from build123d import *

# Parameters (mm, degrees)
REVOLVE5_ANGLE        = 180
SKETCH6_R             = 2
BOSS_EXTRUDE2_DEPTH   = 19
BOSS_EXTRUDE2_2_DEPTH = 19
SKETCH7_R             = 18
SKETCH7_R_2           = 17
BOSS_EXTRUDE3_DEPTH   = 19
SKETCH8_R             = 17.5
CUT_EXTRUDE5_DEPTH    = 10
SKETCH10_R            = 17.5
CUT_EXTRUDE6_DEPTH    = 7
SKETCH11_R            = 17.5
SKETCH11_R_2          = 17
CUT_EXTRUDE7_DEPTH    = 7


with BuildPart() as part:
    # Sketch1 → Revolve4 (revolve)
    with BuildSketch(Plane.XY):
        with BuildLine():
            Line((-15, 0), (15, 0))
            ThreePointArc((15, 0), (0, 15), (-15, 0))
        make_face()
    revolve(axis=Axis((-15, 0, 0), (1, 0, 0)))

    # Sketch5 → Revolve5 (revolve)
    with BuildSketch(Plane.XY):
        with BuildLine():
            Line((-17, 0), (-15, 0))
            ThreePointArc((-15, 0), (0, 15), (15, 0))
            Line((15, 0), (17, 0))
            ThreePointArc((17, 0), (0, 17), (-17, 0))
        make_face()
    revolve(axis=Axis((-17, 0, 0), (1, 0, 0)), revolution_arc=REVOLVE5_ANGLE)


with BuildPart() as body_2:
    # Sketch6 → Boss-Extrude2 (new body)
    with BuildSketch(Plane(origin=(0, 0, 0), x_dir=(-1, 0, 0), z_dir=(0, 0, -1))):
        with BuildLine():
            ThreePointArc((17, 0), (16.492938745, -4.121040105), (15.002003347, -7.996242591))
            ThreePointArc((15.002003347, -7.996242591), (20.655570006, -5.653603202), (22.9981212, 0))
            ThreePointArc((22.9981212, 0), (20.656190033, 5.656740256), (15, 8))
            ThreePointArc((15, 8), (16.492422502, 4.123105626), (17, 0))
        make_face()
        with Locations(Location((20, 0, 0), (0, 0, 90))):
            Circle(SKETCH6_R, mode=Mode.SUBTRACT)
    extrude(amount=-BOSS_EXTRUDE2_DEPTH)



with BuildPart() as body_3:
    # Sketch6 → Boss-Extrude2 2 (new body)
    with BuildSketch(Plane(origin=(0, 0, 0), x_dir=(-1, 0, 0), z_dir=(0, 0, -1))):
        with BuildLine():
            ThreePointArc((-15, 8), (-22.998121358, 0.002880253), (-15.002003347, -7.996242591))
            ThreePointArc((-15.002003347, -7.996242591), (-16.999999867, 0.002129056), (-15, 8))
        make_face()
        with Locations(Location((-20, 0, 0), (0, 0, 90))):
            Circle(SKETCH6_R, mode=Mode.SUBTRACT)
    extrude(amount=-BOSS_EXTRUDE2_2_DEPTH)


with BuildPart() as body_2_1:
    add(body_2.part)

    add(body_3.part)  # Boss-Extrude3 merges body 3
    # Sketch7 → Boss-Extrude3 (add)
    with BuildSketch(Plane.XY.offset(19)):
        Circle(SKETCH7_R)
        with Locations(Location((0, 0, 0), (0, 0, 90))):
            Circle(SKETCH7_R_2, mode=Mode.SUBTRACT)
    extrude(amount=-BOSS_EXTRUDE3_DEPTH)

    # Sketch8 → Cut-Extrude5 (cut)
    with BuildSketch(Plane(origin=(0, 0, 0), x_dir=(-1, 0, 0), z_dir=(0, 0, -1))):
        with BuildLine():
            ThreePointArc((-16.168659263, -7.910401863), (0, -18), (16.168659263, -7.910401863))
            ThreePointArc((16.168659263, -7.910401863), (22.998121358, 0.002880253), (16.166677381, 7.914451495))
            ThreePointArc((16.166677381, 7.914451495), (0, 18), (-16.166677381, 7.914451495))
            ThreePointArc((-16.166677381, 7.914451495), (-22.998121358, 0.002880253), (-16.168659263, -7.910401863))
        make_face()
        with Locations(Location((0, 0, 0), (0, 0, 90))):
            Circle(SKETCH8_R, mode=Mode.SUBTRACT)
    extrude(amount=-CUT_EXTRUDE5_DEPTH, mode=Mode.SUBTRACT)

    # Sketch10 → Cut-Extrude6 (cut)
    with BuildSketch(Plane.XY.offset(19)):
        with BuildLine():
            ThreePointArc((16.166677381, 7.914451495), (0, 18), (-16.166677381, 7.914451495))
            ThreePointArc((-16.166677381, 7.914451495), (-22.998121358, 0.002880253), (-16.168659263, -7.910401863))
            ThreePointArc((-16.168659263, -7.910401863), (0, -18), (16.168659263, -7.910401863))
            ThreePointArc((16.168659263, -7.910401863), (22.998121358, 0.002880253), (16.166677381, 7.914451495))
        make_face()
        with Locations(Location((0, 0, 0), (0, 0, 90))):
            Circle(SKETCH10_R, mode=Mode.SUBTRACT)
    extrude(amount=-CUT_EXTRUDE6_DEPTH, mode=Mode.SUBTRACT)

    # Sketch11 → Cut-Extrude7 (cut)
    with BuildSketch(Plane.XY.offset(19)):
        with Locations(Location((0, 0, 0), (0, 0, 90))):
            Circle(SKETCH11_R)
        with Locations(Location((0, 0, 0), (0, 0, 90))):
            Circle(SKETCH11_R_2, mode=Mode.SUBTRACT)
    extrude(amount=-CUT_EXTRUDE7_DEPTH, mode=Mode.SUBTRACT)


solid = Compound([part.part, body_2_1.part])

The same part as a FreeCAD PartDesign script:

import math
import FreeCAD as App
import Part
import Sketcher

doc = App.newDocument("Part")
body = doc.addObject("PartDesign::Body", "Body")

# Sketch on XY plane
sketch1 = body.newObject("Sketcher::SketchObject", "Sketch")
sketch1.AttachmentSupport = (doc.getObject("XY_Plane"), [""])
sketch1.MapMode = "FlatFace"
sketch1.addGeometry(Part.LineSegment(App.Vector(-15, 0, 0), App.Vector(15, 0, 0)), False)
sketch1.addGeometry(Part.ArcOfCircle(Part.Circle(App.Vector(0, 0, 0), App.Vector(0, 0, 1), 15), math.radians(0), math.radians(180)), False)
sketch1.addConstraint(Sketcher.Constraint("Coincident", 0, 1, 1, 2))
sketch1.addConstraint(Sketcher.Constraint("Coincident", 1, 1, 0, 2))
sketch1.addConstraint(Sketcher.Constraint("Horizontal", 0))
sketch1.addConstraint(Sketcher.Constraint("Coincident", 1, 3, -1, 1))
sketch1.addConstraint(Sketcher.Constraint("PointOnObject", 0, 1, -1))
sketch1.addConstraint(Sketcher.Constraint("Radius", 1, 15.0))
revolution = body.newObject("PartDesign::Revolution", "Revolution")
revolution.Profile = sketch1
revolution.ReferenceAxis = (sketch1, ["H_Axis"])
revolution.Angle = 360

# Sketch on XY plane
sketch2 = body.newObject("Sketcher::SketchObject", "Sketch001")
sketch2.AttachmentSupport = (doc.getObject("XY_Plane"), [""])
sketch2.MapMode = "FlatFace"
sketch2.addGeometry(Part.LineSegment(App.Vector(-17, 0, 0), App.Vector(-15, 0, 0)), False)
sketch2.addGeometry(Part.ArcOfCircle(Part.Circle(App.Vector(0, 0, 0), App.Vector(0, 0, 1), 15), math.radians(0), math.radians(180)), False)
sketch2.addGeometry(Part.LineSegment(App.Vector(15, 0, 0), App.Vector(17, 0, 0)), False)
sketch2.addGeometry(Part.ArcOfCircle(Part.Circle(App.Vector(0, 0, 0), App.Vector(0, 0, 1), 17), math.radians(0), math.radians(180)), False)
sketch2.addConstraint(Sketcher.Constraint("Coincident", 0, 2, 1, 2))
sketch2.addConstraint(Sketcher.Constraint("Coincident", 1, 1, 2, 1))
sketch2.addConstraint(Sketcher.Constraint("Coincident", 2, 2, 3, 1))
sketch2.addConstraint(Sketcher.Constraint("Coincident", 3, 2, 0, 1))
sketch2.addConstraint(Sketcher.Constraint("Horizontal", 0))
sketch2.addConstraint(Sketcher.Constraint("Horizontal", 2))
sketch2.addConstraint(Sketcher.Constraint("Coincident", 1, 3, -1, 1))
sketch2.addConstraint(Sketcher.Constraint("Coincident", 3, 3, -1, 1))
sketch2.addConstraint(Sketcher.Constraint("PointOnObject", 0, 2, -1))
sketch2.addConstraint(Sketcher.Constraint("PointOnObject", 1, 1, -1))
sketch2.addConstraint(Sketcher.Constraint("Radius", 1, 15.0))
sketch2.addConstraint(Sketcher.Constraint("Radius", 3, 17.0))
revolution2 = body.newObject("PartDesign::Revolution", "Revolution001")
revolution2.Profile = sketch2
revolution2.ReferenceAxis = (sketch2, ["H_Axis"])
revolution2.Angle = 180
body2 = doc.addObject("PartDesign::Body", "Body001")

# Sketch on XY plane
sketch3 = body2.newObject("Sketcher::SketchObject", "Sketch002")
sketch3.AttachmentSupport = (doc.getObject("XY_Plane001"), [""])
sketch3.MapMode = "FlatFace"
sketch3.addGeometry(Part.ArcOfCircle(Part.Circle(App.Vector(0, 0, 0), App.Vector(0, 0, 1), 17), math.radians(-180), math.radians(-152)), False)
sketch3.addGeometry(Part.ArcOfCircle(Part.Circle(App.Vector(-15, 0, 0), App.Vector(0, 0, 1), 8), math.radians(-180), math.radians(-90)), False)
sketch3.addGeometry(Part.ArcOfCircle(Part.Circle(App.Vector(-15, 0, 0), App.Vector(0, 0, 1), 8), math.radians(90), math.radians(180)), False)
sketch3.addGeometry(Part.ArcOfCircle(Part.Circle(App.Vector(0, 0, 0), App.Vector(0, 0, 1), 17), math.radians(152), math.radians(180)), False)
sketch3.addGeometry(Part.Circle(App.Vector(-20, 0, 0), App.Vector(0, 0, 1), 2), False)
sketch3.addConstraint(Sketcher.Constraint("Coincident", 0, 2, 1, 2))
sketch3.addConstraint(Sketcher.Constraint("Tangent", 1, 1, 2, 2))
sketch3.addConstraint(Sketcher.Constraint("Coincident", 2, 1, 3, 1))
sketch3.addConstraint(Sketcher.Constraint("Tangent", 3, 2, 0, 1))
sketch3.addConstraint(Sketcher.Constraint("Coincident", 0, 3, -1, 1))
sketch3.addConstraint(Sketcher.Constraint("Equal", 1, 2))
sketch3.addConstraint(Sketcher.Constraint("Equal", 0, 3))
sketch3.addConstraint(Sketcher.Constraint("PointOnObject", 4, 3, -1))
sketch3.addConstraint(Sketcher.Constraint("PointOnObject", 1, 1, -1))
sketch3.addConstraint(Sketcher.Constraint("PointOnObject", 3, 2, -1))
sketch3.addConstraint(Sketcher.Constraint("Vertical", 1, 3, 2, 1))
sketch3.addConstraint(Sketcher.Constraint("Diameter", 4, 4.0))
sketch3.addConstraint(Sketcher.Constraint("Radius", 0, 17.0))
sketch3.addConstraint(Sketcher.Constraint("DistanceX", 1, 3, -1, 1, 15.0))
sketch3.addConstraint(Sketcher.Constraint("DistanceX", 4, 3, -1, 1, 20.0))
sketch3.addConstraint(Sketcher.Constraint("Radius", 1, 7.998121))
pad1 = body2.newObject("PartDesign::Pad", "Pad")
pad1.Profile = sketch3
pad1.Length = 19
body3 = doc.addObject("PartDesign::Body", "Body002")

# Sketch on XY plane
sketch4 = body3.newObject("Sketcher::SketchObject", "Sketch003")
sketch4.AttachmentSupport = (doc.getObject("XY_Plane002"), [""])
sketch4.MapMode = "FlatFace"
sketch4.addGeometry(Part.ArcOfCircle(Part.Circle(App.Vector(15, 0, 0), App.Vector(0, 0, 1), 8), math.radians(-90), math.radians(90)), False)
sketch4.addGeometry(Part.ArcOfCircle(Part.Circle(App.Vector(0, 0, 0), App.Vector(0, 0, 1), 17), math.radians(-28), math.radians(28)), False)
sketch4.addGeometry(Part.Circle(App.Vector(20, 0, 0), App.Vector(0, 0, 1), 2), False)
sketch4.addConstraint(Sketcher.Constraint("Coincident", 0, 1, 1, 1))
sketch4.addConstraint(Sketcher.Constraint("Coincident", 1, 2, 0, 2))
sketch4.addConstraint(Sketcher.Constraint("Coincident", 1, 3, -1, 1))
sketch4.addConstraint(Sketcher.Constraint("PointOnObject", 2, 3, -1))
sketch4.addConstraint(Sketcher.Constraint("Vertical", 0, 3, 1, 2))
sketch4.addConstraint(Sketcher.Constraint("Diameter", 2, 4.0))
sketch4.addConstraint(Sketcher.Constraint("Radius", 1, 17.0))
sketch4.addConstraint(Sketcher.Constraint("DistanceX", -1, 1, 0, 3, 15.0))
sketch4.addConstraint(Sketcher.Constraint("DistanceX", -1, 1, 2, 3, 20.0))
sketch4.addConstraint(Sketcher.Constraint("Radius", 0, 7.998121))
pad2 = body3.newObject("PartDesign::Pad", "Pad001")
pad2.Profile = sketch4
pad2.Length = 19
body2.AllowCompound = True
doc.recompute()

boolean = body2.newObject("PartDesign::Boolean", "Boolean")
boolean.Type = "Fuse"
boolean.addObjects([body3])

# Sketch on XY plane
sketch5 = body2.newObject("Sketcher::SketchObject", "Sketch004")
sketch5.AttachmentSupport = (doc.getObject("XY_Plane001"), [""])
sketch5.MapMode = "FlatFace"
sketch5.AttachmentOffset = App.Placement(App.Vector(0, 0, 19), App.Rotation())
sketch5.addGeometry(Part.Circle(App.Vector(0, 0, 0), App.Vector(0, 0, 1), 18), False)
sketch5.addGeometry(Part.Circle(App.Vector(0, 0, 0), App.Vector(0, 0, 1), 17), False)
sketch5.addConstraint(Sketcher.Constraint("Coincident", 0, 3, -1, 1))
sketch5.addConstraint(Sketcher.Constraint("Coincident", 1, 3, -1, 1))
sketch5.addConstraint(Sketcher.Constraint("Diameter", 0, 36.0))
sketch5.addConstraint(Sketcher.Constraint("Diameter", 1, 34.0))
pad3 = body2.newObject("PartDesign::Pad", "Pad002")
pad3.Profile = sketch5
pad3.Length = 19
pad3.Reversed = True

# Sketch on XY plane
sketch6 = body2.newObject("Sketcher::SketchObject", "Sketch005")
sketch6.AttachmentSupport = (doc.getObject("XY_Plane001"), [""])
sketch6.MapMode = "FlatFace"
sketch6.addGeometry(Part.ArcOfCircle(Part.Circle(App.Vector(0, 0, 0), App.Vector(0, 0, 1), 18), math.radians(-154), math.radians(-26)), False)
sketch6.addGeometry(Part.ArcOfCircle(Part.Circle(App.Vector(-15, 0, 0), App.Vector(0, 0, 1), 8), math.radians(98), math.radians(262)), False)
sketch6.addGeometry(Part.ArcOfCircle(Part.Circle(App.Vector(0, 0, 0), App.Vector(0, 0, 1), 18), math.radians(26), math.radians(154)), False)
sketch6.addGeometry(Part.ArcOfCircle(Part.Circle(App.Vector(15, 0, 0), App.Vector(0, 0, 1), 8), math.radians(-82), math.radians(82)), False)
sketch6.addGeometry(Part.Circle(App.Vector(0, 0, 0), App.Vector(0, 0, 1), 18), False)
sketch6.addConstraint(Sketcher.Constraint("Coincident", 0, 1, 1, 2))
sketch6.addConstraint(Sketcher.Constraint("Coincident", 1, 1, 2, 2))
sketch6.addConstraint(Sketcher.Constraint("Coincident", 2, 1, 3, 2))
sketch6.addConstraint(Sketcher.Constraint("Coincident", 3, 1, 0, 2))
sketch6.addConstraint(Sketcher.Constraint("Coincident", 0, 3, -1, 1))
sketch6.addConstraint(Sketcher.Constraint("Coincident", 2, 3, -1, 1))
sketch6.addConstraint(Sketcher.Constraint("Coincident", 4, 3, -1, 1))
sketch6.addConstraint(Sketcher.Constraint("Equal", 0, 2))
sketch6.addConstraint(Sketcher.Constraint("Equal", 1, 3))
sketch6.addConstraint(Sketcher.Constraint("Symmetric", 1, 3, 3, 3, -2))
sketch6.addConstraint(Sketcher.Constraint("Diameter", 4, 35.0))
sketch6.addConstraint(Sketcher.Constraint("Radius", 0, 18.0))
sketch6.addConstraint(Sketcher.Constraint("DistanceX", 1, 3, -1, 1, 15.0))
sketch6.addConstraint(Sketcher.Constraint("Radius", 1, 7.998121))
sketch6.addConstraint(Sketcher.Constraint("DistanceY", 0, 1, -1, 1, 7.910402))
pocket1 = body2.newObject("PartDesign::Pocket", "Pocket")
pocket1.Profile = sketch6
pocket1.Length = 10
pocket1.Reversed = True

# Sketch on XY plane
sketch7 = body2.newObject("Sketcher::SketchObject", "Sketch006")
sketch7.AttachmentSupport = (doc.getObject("XY_Plane001"), [""])
sketch7.MapMode = "FlatFace"
sketch7.AttachmentOffset = App.Placement(App.Vector(0, 0, 19), App.Rotation())
sketch7.addGeometry(Part.ArcOfCircle(Part.Circle(App.Vector(0, 0, 0), App.Vector(0, 0, 1), 18), math.radians(26), math.radians(154)), False)
sketch7.addGeometry(Part.ArcOfCircle(Part.Circle(App.Vector(-15, 0, 0), App.Vector(0, 0, 1), 8), math.radians(98), math.radians(262)), False)
sketch7.addGeometry(Part.ArcOfCircle(Part.Circle(App.Vector(0, 0, 0), App.Vector(0, 0, 1), 18), math.radians(-154), math.radians(-26)), False)
sketch7.addGeometry(Part.ArcOfCircle(Part.Circle(App.Vector(15, 0, 0), App.Vector(0, 0, 1), 8), math.radians(-82), math.radians(82)), False)
sketch7.addGeometry(Part.Circle(App.Vector(0, 0, 0), App.Vector(0, 0, 1), 18), False)
sketch7.addConstraint(Sketcher.Constraint("Coincident", 0, 2, 1, 1))
sketch7.addConstraint(Sketcher.Constraint("Coincident", 1, 2, 2, 1))
sketch7.addConstraint(Sketcher.Constraint("Coincident", 2, 2, 3, 1))
sketch7.addConstraint(Sketcher.Constraint("Coincident", 3, 2, 0, 1))
sketch7.addConstraint(Sketcher.Constraint("Coincident", 0, 3, -1, 1))
sketch7.addConstraint(Sketcher.Constraint("Coincident", 2, 3, -1, 1))
sketch7.addConstraint(Sketcher.Constraint("Coincident", 4, 3, -1, 1))
sketch7.addConstraint(Sketcher.Constraint("Equal", 0, 2))
sketch7.addConstraint(Sketcher.Constraint("Equal", 1, 3))
sketch7.addConstraint(Sketcher.Constraint("Symmetric", 1, 3, 3, 3, -2))
sketch7.addConstraint(Sketcher.Constraint("Diameter", 4, 35.0))
sketch7.addConstraint(Sketcher.Constraint("Radius", 0, 18.0))
sketch7.addConstraint(Sketcher.Constraint("DistanceX", 1, 3, -1, 1, 15.0))
sketch7.addConstraint(Sketcher.Constraint("Radius", 1, 7.998121))
sketch7.addConstraint(Sketcher.Constraint("DistanceY", 1, 2, -1, 1, 7.910402))
pocket2 = body2.newObject("PartDesign::Pocket", "Pocket001")
pocket2.Profile = sketch7
pocket2.Length = 7

# Sketch on XY plane
sketch8 = body2.newObject("Sketcher::SketchObject", "Sketch007")
sketch8.AttachmentSupport = (doc.getObject("XY_Plane001"), [""])
sketch8.MapMode = "FlatFace"
sketch8.AttachmentOffset = App.Placement(App.Vector(0, 0, 19), App.Rotation())
sketch8.addGeometry(Part.Circle(App.Vector(0, 0, 0), App.Vector(0, 0, 1), 18), False)
sketch8.addGeometry(Part.Circle(App.Vector(0, 0, 0), App.Vector(0, 0, 1), 17), False)
sketch8.addConstraint(Sketcher.Constraint("Coincident", 0, 3, -1, 1))
sketch8.addConstraint(Sketcher.Constraint("Coincident", 1, 3, -1, 1))
sketch8.addConstraint(Sketcher.Constraint("Diameter", 0, 35.0))
sketch8.addConstraint(Sketcher.Constraint("Diameter", 1, 34.0))
pocket3 = body2.newObject("PartDesign::Pocket", "Pocket002")
pocket3.Profile = sketch8
pocket3.Length = 7

doc.recompute()
